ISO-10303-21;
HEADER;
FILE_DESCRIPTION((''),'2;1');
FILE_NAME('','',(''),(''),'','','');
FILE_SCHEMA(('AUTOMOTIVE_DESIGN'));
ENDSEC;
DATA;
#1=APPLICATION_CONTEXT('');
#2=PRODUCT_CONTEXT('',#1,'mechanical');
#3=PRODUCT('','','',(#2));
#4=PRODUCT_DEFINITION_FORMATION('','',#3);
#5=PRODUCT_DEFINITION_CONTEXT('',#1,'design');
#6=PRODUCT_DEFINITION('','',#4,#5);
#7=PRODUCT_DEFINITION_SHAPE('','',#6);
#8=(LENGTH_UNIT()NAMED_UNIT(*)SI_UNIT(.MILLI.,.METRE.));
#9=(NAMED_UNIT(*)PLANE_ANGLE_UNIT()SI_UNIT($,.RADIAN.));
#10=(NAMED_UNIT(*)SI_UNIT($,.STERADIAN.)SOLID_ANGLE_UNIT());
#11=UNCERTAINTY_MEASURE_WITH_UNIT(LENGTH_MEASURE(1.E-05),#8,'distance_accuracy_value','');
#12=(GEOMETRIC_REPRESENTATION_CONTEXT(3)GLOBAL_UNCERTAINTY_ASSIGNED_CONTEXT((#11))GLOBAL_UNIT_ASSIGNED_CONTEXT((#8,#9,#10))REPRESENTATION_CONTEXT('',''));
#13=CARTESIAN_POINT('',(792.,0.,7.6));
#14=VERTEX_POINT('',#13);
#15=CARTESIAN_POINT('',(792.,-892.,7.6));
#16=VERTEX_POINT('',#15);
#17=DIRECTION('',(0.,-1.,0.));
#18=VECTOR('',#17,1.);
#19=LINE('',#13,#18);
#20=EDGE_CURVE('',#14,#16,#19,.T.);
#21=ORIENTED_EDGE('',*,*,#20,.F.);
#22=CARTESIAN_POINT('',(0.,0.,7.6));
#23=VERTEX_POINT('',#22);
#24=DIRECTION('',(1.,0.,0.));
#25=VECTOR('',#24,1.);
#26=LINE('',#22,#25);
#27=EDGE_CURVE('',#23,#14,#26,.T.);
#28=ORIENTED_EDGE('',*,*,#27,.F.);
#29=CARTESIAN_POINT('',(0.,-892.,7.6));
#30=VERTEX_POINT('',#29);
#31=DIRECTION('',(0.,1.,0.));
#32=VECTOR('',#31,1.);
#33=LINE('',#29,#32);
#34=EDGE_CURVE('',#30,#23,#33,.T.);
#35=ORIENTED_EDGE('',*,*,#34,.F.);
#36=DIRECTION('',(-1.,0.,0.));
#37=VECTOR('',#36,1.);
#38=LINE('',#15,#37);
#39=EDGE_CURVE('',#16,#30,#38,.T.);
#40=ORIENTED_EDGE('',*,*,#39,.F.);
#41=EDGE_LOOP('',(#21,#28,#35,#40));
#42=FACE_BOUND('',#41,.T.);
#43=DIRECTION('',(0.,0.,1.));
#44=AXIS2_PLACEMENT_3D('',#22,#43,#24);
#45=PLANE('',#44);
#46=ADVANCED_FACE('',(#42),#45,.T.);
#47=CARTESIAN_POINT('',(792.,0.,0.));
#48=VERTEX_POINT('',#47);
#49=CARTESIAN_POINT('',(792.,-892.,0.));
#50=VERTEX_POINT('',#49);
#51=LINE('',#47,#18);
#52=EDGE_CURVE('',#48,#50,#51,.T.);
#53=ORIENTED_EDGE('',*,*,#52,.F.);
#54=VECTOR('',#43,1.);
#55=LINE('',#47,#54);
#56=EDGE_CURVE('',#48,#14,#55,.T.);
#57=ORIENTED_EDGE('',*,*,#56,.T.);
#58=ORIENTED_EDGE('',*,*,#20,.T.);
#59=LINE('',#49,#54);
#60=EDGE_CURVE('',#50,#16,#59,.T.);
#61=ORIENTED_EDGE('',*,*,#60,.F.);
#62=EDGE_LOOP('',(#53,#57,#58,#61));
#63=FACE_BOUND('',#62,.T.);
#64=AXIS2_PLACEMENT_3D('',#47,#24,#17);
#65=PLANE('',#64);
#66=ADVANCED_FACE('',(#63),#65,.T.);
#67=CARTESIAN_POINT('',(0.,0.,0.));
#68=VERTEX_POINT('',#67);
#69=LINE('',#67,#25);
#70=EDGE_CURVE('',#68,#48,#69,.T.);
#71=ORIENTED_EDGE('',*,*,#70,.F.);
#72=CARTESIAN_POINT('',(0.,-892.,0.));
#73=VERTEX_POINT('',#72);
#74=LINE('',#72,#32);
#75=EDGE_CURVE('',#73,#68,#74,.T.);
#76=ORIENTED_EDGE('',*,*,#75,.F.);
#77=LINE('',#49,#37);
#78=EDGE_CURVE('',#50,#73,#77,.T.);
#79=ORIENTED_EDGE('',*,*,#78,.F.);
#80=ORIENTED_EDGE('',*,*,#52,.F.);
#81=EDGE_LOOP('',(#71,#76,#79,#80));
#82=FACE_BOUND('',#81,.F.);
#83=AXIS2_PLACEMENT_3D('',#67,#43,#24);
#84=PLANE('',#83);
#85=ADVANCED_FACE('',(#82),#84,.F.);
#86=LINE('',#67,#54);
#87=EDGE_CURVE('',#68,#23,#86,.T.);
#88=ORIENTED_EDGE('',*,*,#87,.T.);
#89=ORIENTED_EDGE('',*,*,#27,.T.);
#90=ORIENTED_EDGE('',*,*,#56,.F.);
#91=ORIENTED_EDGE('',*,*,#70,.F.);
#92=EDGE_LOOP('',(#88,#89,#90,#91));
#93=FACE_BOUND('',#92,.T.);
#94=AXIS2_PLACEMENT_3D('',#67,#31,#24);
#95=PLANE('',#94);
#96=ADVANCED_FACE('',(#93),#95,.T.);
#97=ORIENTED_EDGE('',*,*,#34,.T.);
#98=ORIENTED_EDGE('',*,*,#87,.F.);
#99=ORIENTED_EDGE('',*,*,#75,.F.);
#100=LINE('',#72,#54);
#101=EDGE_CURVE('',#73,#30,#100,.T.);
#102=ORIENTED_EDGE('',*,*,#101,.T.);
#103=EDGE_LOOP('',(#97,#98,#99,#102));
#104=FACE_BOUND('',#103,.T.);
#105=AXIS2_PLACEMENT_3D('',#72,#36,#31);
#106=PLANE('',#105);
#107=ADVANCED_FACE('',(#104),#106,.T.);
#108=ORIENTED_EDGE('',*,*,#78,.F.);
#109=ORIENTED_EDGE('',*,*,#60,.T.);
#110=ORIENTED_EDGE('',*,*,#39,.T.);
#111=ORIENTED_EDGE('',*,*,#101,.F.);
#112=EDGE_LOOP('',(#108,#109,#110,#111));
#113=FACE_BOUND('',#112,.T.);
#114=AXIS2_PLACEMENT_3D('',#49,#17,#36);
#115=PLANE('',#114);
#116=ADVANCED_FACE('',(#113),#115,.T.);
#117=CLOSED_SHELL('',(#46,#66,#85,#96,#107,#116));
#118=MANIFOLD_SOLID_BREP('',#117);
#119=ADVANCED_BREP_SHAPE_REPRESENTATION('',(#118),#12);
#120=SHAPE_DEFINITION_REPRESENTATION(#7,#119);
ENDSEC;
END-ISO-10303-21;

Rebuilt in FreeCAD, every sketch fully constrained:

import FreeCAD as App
import Part
import Sketcher
Q = App.Units.Quantity

doc = App.newDocument("Part")
body = doc.addObject("PartDesign::Body", "Body")

# Sketch on XY plane
sketch1 = body.newObject("Sketcher::SketchObject", "Sketch")
sketch1.AttachmentSupport = (doc.getObject("XY_Plane"), [""])
sketch1.MapMode = "FlatFace"
sketch1.addGeometry([
    Part.LineSegment(App.Vector(792, 0, 0), App.Vector(0, 0, 0)),
    Part.LineSegment(App.Vector(0, 0, 0), App.Vector(0, -892, 0)),
    Part.LineSegment(App.Vector(0, -892, 0), App.Vector(792, -892, 0)),
    Part.LineSegment(App.Vector(792, -892, 0), App.Vector(792, 0, 0)),
], False)
sketch1.addConstraint([
    Sketcher.Constraint("Coincident", 0, 2, 1, 1),
    Sketcher.Constraint("Coincident", 1, 2, 2, 1),
    Sketcher.Constraint("Coincident", 2, 2, 3, 1),
    Sketcher.Constraint("Coincident", 3, 2, 0, 1),
    Sketcher.Constraint("Horizontal", 0),
    Sketcher.Constraint("Vertical", 1),
    Sketcher.Constraint("Horizontal", 2),
    Sketcher.Constraint("Vertical", 3),
    Sketcher.Constraint("Coincident", 0, 2, -1, 1),
    Sketcher.Constraint("DistanceX", 0, 2, 0, 1, Q("792 mm")),
    Sketcher.Constraint("DistanceY", 1, 2, 1, 1, Q("892 mm")),
])
pad1 = body.newObject("PartDesign::Pad", "Pad")
pad1.Profile = sketch1
pad1.Length = 7.6

doc.recompute()
